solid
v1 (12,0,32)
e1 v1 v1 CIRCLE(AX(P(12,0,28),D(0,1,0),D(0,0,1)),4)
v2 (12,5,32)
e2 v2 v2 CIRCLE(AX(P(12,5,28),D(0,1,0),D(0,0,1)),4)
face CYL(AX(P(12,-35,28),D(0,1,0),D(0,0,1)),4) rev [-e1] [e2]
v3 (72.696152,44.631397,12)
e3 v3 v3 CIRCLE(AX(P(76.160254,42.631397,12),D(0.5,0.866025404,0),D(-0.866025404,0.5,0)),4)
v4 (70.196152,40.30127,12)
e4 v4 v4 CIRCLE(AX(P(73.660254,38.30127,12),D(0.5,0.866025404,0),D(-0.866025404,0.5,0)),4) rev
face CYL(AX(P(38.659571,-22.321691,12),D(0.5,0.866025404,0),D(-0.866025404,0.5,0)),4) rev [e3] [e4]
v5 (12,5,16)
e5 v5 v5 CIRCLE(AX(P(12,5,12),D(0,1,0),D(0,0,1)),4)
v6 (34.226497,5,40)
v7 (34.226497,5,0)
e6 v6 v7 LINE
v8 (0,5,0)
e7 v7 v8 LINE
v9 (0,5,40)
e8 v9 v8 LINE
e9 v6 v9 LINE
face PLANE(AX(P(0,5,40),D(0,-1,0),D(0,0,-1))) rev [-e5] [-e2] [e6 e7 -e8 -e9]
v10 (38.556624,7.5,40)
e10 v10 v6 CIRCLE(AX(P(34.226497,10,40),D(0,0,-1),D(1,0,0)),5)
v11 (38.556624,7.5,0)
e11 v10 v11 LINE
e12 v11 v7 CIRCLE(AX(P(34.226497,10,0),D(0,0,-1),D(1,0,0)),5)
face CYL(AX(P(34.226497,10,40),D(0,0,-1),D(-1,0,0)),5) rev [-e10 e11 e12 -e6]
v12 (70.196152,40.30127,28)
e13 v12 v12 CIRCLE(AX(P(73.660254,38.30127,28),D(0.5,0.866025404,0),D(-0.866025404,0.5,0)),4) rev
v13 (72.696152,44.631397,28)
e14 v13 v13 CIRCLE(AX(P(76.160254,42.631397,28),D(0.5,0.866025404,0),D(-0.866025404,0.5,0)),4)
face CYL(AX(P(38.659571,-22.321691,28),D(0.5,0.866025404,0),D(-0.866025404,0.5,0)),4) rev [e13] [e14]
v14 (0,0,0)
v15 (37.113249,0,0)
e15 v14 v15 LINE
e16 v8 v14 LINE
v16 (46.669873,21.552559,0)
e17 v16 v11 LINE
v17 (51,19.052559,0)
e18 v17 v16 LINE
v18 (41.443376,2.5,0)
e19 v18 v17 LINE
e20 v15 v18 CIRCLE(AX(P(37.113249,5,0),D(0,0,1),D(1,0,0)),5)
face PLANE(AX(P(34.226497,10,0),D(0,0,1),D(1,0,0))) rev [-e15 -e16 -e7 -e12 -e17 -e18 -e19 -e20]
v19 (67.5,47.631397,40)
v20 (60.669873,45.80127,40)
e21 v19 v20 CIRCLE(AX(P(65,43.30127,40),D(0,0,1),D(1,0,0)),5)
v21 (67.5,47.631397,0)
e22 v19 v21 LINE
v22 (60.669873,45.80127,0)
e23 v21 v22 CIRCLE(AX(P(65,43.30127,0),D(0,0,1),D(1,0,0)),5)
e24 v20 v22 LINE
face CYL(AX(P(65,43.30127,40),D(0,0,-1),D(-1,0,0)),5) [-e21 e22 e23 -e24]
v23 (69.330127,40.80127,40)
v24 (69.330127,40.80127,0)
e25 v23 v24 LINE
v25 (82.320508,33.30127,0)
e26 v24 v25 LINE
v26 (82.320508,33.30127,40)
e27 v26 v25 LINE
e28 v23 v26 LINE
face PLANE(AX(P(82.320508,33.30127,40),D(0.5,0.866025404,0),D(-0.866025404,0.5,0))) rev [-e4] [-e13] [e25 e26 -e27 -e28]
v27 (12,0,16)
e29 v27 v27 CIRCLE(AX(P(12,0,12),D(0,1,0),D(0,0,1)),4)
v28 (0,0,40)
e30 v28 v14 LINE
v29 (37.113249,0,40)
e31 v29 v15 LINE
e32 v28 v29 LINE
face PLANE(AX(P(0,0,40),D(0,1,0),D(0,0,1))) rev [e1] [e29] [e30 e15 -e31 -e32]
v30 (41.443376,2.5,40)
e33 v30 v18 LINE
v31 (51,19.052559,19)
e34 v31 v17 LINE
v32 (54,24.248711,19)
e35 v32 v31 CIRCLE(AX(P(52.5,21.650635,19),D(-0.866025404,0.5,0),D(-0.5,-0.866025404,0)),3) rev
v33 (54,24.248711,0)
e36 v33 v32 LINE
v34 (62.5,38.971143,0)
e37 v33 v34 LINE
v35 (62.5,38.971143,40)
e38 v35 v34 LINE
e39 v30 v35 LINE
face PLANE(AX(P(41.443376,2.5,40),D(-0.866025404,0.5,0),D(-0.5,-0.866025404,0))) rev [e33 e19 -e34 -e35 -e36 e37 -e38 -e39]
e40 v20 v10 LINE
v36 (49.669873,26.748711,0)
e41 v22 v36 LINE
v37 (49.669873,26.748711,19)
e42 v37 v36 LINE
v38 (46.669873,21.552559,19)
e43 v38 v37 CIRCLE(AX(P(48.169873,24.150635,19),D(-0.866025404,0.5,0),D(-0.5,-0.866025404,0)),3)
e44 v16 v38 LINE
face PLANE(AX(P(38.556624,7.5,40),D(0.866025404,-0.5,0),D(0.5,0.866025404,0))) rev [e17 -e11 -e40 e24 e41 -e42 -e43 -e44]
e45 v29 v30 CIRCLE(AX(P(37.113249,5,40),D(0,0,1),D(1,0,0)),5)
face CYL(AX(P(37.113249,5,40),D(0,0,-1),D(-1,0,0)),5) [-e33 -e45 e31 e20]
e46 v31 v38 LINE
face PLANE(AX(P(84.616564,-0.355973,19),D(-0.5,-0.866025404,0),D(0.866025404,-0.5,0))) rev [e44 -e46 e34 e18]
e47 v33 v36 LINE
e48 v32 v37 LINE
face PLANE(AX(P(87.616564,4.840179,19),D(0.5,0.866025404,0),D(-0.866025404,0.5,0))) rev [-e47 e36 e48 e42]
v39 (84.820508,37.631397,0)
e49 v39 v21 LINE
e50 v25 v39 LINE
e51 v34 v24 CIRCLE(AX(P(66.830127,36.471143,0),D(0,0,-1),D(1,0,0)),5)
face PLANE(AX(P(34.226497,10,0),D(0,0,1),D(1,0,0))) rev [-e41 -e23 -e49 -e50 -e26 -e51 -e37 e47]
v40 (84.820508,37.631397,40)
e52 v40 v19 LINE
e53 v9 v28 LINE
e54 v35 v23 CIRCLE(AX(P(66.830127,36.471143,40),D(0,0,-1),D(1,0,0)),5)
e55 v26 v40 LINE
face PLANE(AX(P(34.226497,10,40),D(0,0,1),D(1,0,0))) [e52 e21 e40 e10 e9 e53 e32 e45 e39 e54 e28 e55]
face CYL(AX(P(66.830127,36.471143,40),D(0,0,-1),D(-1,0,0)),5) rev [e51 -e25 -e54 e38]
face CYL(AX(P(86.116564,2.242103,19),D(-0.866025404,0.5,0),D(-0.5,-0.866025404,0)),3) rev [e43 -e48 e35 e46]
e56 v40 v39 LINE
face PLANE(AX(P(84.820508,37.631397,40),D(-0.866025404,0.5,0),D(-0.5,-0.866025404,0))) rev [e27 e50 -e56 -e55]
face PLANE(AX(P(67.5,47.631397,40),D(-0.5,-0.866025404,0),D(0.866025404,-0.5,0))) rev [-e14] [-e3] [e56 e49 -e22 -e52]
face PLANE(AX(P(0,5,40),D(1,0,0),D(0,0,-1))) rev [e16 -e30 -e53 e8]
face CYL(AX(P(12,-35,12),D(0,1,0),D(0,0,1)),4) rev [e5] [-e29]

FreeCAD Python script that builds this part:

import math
import FreeCAD as App
import Part
import Sketcher
Q = App.Units.Quantity

doc = App.newDocument("Part")
body = doc.addObject("PartDesign::Body", "Body")

sketch1 = body.newObject("Sketcher::SketchObject", "Sketch")
sketch1.AttachmentSupport = (doc.getObject("XY_Plane"), [""])
sketch1.MapMode = "FlatFace"
sketch1.addGeometry([
    Part.LineSegment(App.Vector(0, 5, 0), App.Vector(0, 0, 0)),
    Part.LineSegment(App.Vector(0, 0, 0), App.Vector(37.1, 0, 0)),
    Part.ArcOfCircle(Part.Circle(App.Vector(37.1, 5, 0), App.Vector(0, 0, 1), 5), math.radians(-90), math.radians(-30)),
    Part.LineSegment(App.Vector(41.4, 2.5, 0), App.Vector(62.5, 39, 0)),
    Part.ArcOfCircle(Part.Circle(App.Vector(66.8, 36.5, 0), App.Vector(0, 0, 1), 5), math.radians(60), math.radians(150)),
    Part.LineSegment(App.Vector(69.3, 40.8, 0), App.Vector(82.3, 33.3, 0)),
    Part.LineSegment(App.Vector(82.3, 33.3, 0), App.Vector(84.8, 37.6, 0)),
    Part.LineSegment(App.Vector(84.8, 37.6, 0), App.Vector(67.5, 47.6, 0)),
    Part.ArcOfCircle(Part.Circle(App.Vector(65, 43.3, 0), App.Vector(0, 0, 1), 5), math.radians(60), math.radians(150)),
    Part.LineSegment(App.Vector(60.7, 45.8, 0), App.Vector(38.6, 7.5, 0)),
    Part.ArcOfCircle(Part.Circle(App.Vector(34.2, 10, 0), App.Vector(0, 0, 1), 5), math.radians(-90), math.radians(-30)),
    Part.LineSegment(App.Vector(34.2, 5, 0), App.Vector(0, 5, 0)),
], False)
sketch1.addConstraint([
    Sketcher.Constraint("Coincident", 0, 2, 1, 1),
    Sketcher.Constraint("Tangent", 1, 2, 2, 1),
    Sketcher.Constraint("Tangent", 2, 2, 3, 1),
    Sketcher.Constraint("Tangent", 3, 2, 4, 2),
    Sketcher.Constraint("Tangent", 4, 1, 5, 1),
    Sketcher.Constraint("Coincident", 5, 2, 6, 1),
    Sketcher.Constraint("Coincident", 6, 2, 7, 1),
    Sketcher.Constraint("Tangent", 7, 2, 8, 1),
    Sketcher.Constraint("Tangent", 8, 2, 9, 1),
    Sketcher.Constraint("Tangent", 9, 2, 10, 2),
    Sketcher.Constraint("Tangent", 10, 1, 11, 1),
    Sketcher.Constraint("Coincident", 11, 2, 0, 1),
    Sketcher.Constraint("Vertical", 0),
    Sketcher.Constraint("Horizontal", 1),
    Sketcher.Constraint("Horizontal", 11),
    Sketcher.Constraint("Coincident", 0, 2, -1, 1),
    Sketcher.Constraint("Equal", 2, 4),
    Sketcher.Constraint("Equal", 4, 8),
    Sketcher.Constraint("Equal", 8, 10),
    Sketcher.Constraint("Perpendicular", 3, 5),
    Sketcher.Constraint("Perpendicular", 5, 6),
    Sketcher.Constraint("Perpendicular", 6, 7),
    Sketcher.Constraint("Perpendicular", 7, 9),
    Sketcher.Constraint("Horizontal", 2, 3, 10, 1),
    Sketcher.Constraint("Radius", 2, Q("5 mm")),
    Sketcher.Constraint("Angle", 3, Q("60 deg")),
    Sketcher.Constraint("Distance", 5, Q("15 mm")),
    Sketcher.Constraint("Distance", 6, Q("5 mm")),
    Sketcher.Constraint("Distance", 7, Q("20 mm")),
    Sketcher.Constraint("DistanceX", -1, 1, 8, 3, Q("65 mm")),
    Sketcher.Constraint("DistanceX", 1, 1, 1, 2, Q("37.113249 mm")),
])
pad1 = body.newObject("PartDesign::Pad", "Pad")
pad1.Profile = sketch1
pad1.Length = 40

sketch2 = body.newObject("Sketcher::SketchObject", "Sketch001")
sketch2.AttachmentSupport = (doc.getObject("XZ_Plane"), [""])
sketch2.MapMode = "FlatFace"
sketch2.AttachmentOffset = App.Placement(App.Vector(0, 0, -5), App.Rotation())
sketch2.addGeometry([
    Part.Circle(App.Vector(12, 12, 0), App.Vector(0, 0, 1), 4),
    Part.Circle(App.Vector(12, 28, 0), App.Vector(0, 0, 1), 4),
], False)
sketch2.addConstraint([
    Sketcher.Constraint("Equal", 0, 1),
    Sketcher.Constraint("Vertical", 0, 3, 1, 3),
    Sketcher.Constraint("Diameter", 0, Q("8 mm")),
    Sketcher.Constraint("DistanceX", -1, 1, 0, 3, Q("12 mm")),
    Sketcher.Constraint("DistanceY", -1, 1, 0, 3, Q("12 mm")),
    Sketcher.Constraint("DistanceY", -1, 1, 1, 3, Q("28 mm")),
])
pocket1 = body.newObject("PartDesign::Pocket", "Pocket")
pocket1.Profile = sketch2
pocket1.Length = 40
pocket1.Reversed = True

sketch3 = body.newObject("Sketcher::SketchObject", "Sketch002")
sketch3.Placement = App.Placement(App.Vector(25.669873, -14.820508, 0), App.Rotation(App.Vector(0, 0, 1), App.Vector(0.5, 0.866025404, 0), App.Vector(-0.866025404, 0.5, 0), "ZXY"))
sketch3.addGeometry([
    Part.LineSegment(App.Vector(19, 48, 0), App.Vector(0, 48, 0)),
    Part.LineSegment(App.Vector(0, 48, 0), App.Vector(0, 42, 0)),
    Part.LineSegment(App.Vector(0, 42, 0), App.Vector(19, 42, 0)),
    Part.ArcOfCircle(Part.Circle(App.Vector(19, 45, 0), App.Vector(0, 0, 1), 3), math.radians(-90), math.radians(90)),
], False)
sketch3.addConstraint([
    Sketcher.Constraint("Coincident", 0, 2, 1, 1),
    Sketcher.Constraint("Coincident", 1, 2, 2, 1),
    Sketcher.Constraint("Tangent", 2, 2, 3, 1),
    Sketcher.Constraint("Tangent", 3, 2, 0, 1),
    Sketcher.Constraint("Horizontal", 0),
    Sketcher.Constraint("Vertical", 1),
    Sketcher.Constraint("Horizontal", 2),
    Sketcher.Constraint("PointOnObject", 0, 2, -2),
    Sketcher.Constraint("Radius", 3, Q("3 mm")),
    Sketcher.Constraint("DistanceX", 0, 2, 0, 1, Q("19 mm")),
    Sketcher.Constraint("DistanceY", -1, 1, 3, 3, Q("45 mm")),
])
pocket2 = body.newObject("PartDesign::Pocket", "Pocket001")
pocket2.Profile = sketch3
pocket2.Type = "UpToFirst"

sketch4 = body.newObject("Sketcher::SketchObject", "Sketch003")
sketch4.Placement = App.Placement(App.Vector(37.5, 64.951905, 0), App.Rotation(App.Vector(0.866025404, -0.5, 0), App.Vector(0, 0, -1), App.Vector(0.5, 0.866025404, 0), "ZXY"))
sketch4.addGeometry(Part.Circle(App.Vector(44.6, -28, 0), App.Vector(0, 0, 1), 4), False)
sketch4.addConstraint([
    Sketcher.Constraint("Diameter", 0, Q("8 mm")),
    Sketcher.Constraint("DistanceY", 0, 3, -1, 1, Q("28 mm")),
    Sketcher.Constraint("DistanceX", -1, 1, 0, 3, Q("44.641016 mm")),
])
pocket3 = body.newObject("PartDesign::Pocket", "Pocket002")
pocket3.Profile = sketch4
pocket3.Type = "UpToFirst"

sketch5 = body.newObject("Sketcher::SketchObject", "Sketch004")
sketch5.Placement = App.Placement(App.Vector(37.5, 64.951905, 0), App.Rotation(App.Vector(0.866025404, -0.5, 0), App.Vector(0, 0, -1), App.Vector(0.5, 0.866025404, 0), "ZXY"))
sketch5.addGeometry(Part.Circle(App.Vector(44.6, -12, 0), App.Vector(0, 0, 1), 4), False)
sketch5.addConstraint([
    Sketcher.Constraint("Diameter", 0, Q("8 mm")),
    Sketcher.Constraint("DistanceY", 0, 3, -1, 1, Q("12 mm")),
    Sketcher.Constraint("DistanceX", -1, 1, 0, 3, Q("44.641016 mm")),
])
pocket4 = body.newObject("PartDesign::Pocket", "Pocket003")
pocket4.Profile = sketch5
pocket4.Type = "UpToFirst"

doc.recompute()
